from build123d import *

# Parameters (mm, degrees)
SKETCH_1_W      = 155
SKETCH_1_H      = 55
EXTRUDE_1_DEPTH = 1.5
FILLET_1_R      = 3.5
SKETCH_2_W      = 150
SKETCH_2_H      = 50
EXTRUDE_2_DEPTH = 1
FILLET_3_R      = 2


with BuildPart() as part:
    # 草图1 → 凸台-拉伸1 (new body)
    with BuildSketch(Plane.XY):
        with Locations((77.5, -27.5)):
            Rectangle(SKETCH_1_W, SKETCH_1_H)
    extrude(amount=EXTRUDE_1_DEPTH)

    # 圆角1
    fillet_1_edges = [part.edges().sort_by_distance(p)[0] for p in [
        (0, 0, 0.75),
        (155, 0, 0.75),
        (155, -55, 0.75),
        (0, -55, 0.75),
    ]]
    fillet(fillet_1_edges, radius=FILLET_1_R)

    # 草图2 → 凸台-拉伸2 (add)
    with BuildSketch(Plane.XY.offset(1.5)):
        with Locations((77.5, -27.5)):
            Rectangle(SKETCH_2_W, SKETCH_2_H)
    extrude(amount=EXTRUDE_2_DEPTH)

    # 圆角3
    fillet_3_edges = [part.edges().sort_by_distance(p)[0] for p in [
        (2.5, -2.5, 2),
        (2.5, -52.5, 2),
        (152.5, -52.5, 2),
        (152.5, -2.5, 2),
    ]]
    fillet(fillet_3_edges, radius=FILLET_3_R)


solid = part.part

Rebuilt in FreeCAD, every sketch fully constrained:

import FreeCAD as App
import Part
import Sketcher
from FreeCAD import Vector
Q = App.Units.Quantity


def edges_at(feature, points):
    """Names of the edges that pass closest to the given points."""
    edges = feature.Shape.Edges
    near = lambda p: min(range(len(edges)), key=lambda i: edges[i].distToShape(Part.Vertex(*p))[0])
    return sorted({f"Edge{near(p) + 1}" for p in points})


def add_polygon(sketch, points):
    """Adds a closed chain of lines whose ends are joined by coincident constraints."""
    first, n = sketch.GeometryCount, len(points)
    for a, b in zip(points, points[1:] + points[:1]):
        sketch.addGeometry(Part.LineSegment(App.Vector(*a, 0), App.Vector(*b, 0)), False)
    for i in range(n):
        sketch.addConstraint(Sketcher.Constraint("Coincident", first + i, 2, first + (i + 1) % n, 1))

doc = App.newDocument("Part")
body = doc.addObject("PartDesign::Body", "Body")

# Sketch on XY plane
sketch1 = doc.addObject("Sketcher::SketchObject", "Sketch")
body.addObject(sketch1)
sketch1.AttachmentSupport = (doc.XY_Plane, [""])
sketch1.MapMode = "FlatFace"
add_polygon(sketch1, [(0, 0), (0, -55), (155, -55), (155, 0)])  # lines 0-3
sketch1.addConstraint([
    Sketcher.Constraint("Vertical", 0),
    Sketcher.Constraint("Horizontal", 1),
    Sketcher.Constraint("Vertical", 2),
    Sketcher.Constraint("Horizontal", 3),
    Sketcher.Constraint("Coincident", 3, 2, -1, 1),
    Sketcher.Constraint("DistanceX", 1, 1, 1, 2, Q("155 mm")),
    Sketcher.Constraint("DistanceY", 0, 2, 0, 1, Q("55 mm")),
])
pad1 = doc.addObject("PartDesign::Pad", "Pad")
body.addObject(pad1)
pad1.Profile = sketch1
pad1.Length = 1.5
doc.recompute()

fillet = doc.addObject("PartDesign::Fillet", "Fillet")
body.addObject(fillet)
fillet.Base = (pad1, edges_at(pad1, [
    (0, 0, 0.75),
    (155, 0, 0.75),
    (155, -55, 0.75),
    (0, -55, 0.75),
]))
fillet.Radius = 3.5

# Sketch on XY plane
sketch2 = doc.addObject("Sketcher::SketchObject", "Sketch001")
body.addObject(sketch2)
sketch2.AttachmentSupport = (doc.XY_Plane, [""])
sketch2.MapMode = "FlatFace"
sketch2.AttachmentOffset = App.Placement(Vector(0, 0, 1.5), App.Rotation())
add_polygon(sketch2, [(2, -2), (2, -52), (152, -52), (152, -2)])  # lines 0-3
sketch2.addConstraint([
    Sketcher.Constraint("Vertical", 0),
    Sketcher.Constraint("Horizontal", 1),
    Sketcher.Constraint("Vertical", 2),
    Sketcher.Constraint("Horizontal", 3),
    Sketcher.Constraint("DistanceX", 1, 1, 1, 2, Q("150 mm")),
    Sketcher.Constraint("DistanceY", 0, 2, 0, 1, Q("50 mm")),
    Sketcher.Constraint("DistanceX", -1, 1, 0, 2, Q("2.5 mm")),
    Sketcher.Constraint("DistanceY", 0, 2, -1, 1, Q("52.5 mm")),
])
pad2 = doc.addObject("PartDesign::Pad", "Pad001")
body.addObject(pad2)
pad2.Profile = sketch2
pad2.Length = 1
doc.recompute()

fillet2 = doc.addObject("PartDesign::Fillet", "Fillet001")
body.addObject(fillet2)
fillet2.Base = (pad2, edges_at(pad2, [
    (2.5, -2.5, 2),
    (2.5, -52.5, 2),
    (152.5, -52.5, 2),
    (152.5, -2.5, 2),
]))
fillet2.Radius = 2

doc.recompute()
